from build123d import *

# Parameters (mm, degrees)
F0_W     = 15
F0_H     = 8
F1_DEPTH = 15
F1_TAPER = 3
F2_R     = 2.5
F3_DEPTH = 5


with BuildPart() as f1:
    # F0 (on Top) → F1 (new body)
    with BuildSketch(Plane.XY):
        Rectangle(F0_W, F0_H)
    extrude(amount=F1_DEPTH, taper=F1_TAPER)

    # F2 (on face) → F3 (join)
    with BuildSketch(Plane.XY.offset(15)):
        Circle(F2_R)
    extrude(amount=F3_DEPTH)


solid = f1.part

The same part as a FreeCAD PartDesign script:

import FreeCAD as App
import Part
import Sketcher

V = App.Vector


def add_polygon(sketch, points):
    """Adds a closed chain of lines whose ends are joined by coincident constraints."""
    first, n = sketch.GeometryCount, len(points)
    for a, b in zip(points, points[1:] + points[:1]):
        sketch.addGeometry(Part.LineSegment(App.Vector(*a, 0), App.Vector(*b, 0)), False)
    for i in range(n):
        sketch.addConstraint(Sketcher.Constraint("Coincident", first + i, 2, first + (i + 1) % n, 1))

doc = App.newDocument("Part")
params = doc.addObject("Spreadsheet::Sheet", "Params")
for row, (alias, value) in enumerate([
    ("sketch1_width", "15 mm"),
    ("sketch1_height", "8 mm"),
    ("pad1_length", "15 mm"),
    ("pad1_taper", "-3 deg"),
    ("sketch2_diameter", "5 mm"),
    ("pad2_length", "5 mm"),
], start=1):
    params.set(f"A{row}", alias)
    params.set(f"B{row}", "=" + value)
    params.setAlias(f"B{row}", alias)

body = doc.addObject("PartDesign::Body", "Body")

# Sketch on XY plane
sketch1 = body.newObject("Sketcher::SketchObject", "Sketch")
sketch1.AttachmentSupport = (doc.getObject("XY_Plane"), [""])
sketch1.MapMode = "FlatFace"
add_polygon(sketch1, [(-7.5, 4), (-7.5, -4), (7.5, -4), (7.5, 4)])  # lines 0-3
sketch1.addConstraint(Sketcher.Constraint("Vertical", 0))
sketch1.addConstraint(Sketcher.Constraint("Horizontal", 1))
sketch1.addConstraint(Sketcher.Constraint("Vertical", 2))
sketch1.addConstraint(Sketcher.Constraint("Horizontal", 3))
sketch1.addConstraint(Sketcher.Constraint("Symmetric", 0, 2, 2, 2, -1, 1))
sketch1.addConstraint(Sketcher.Constraint("DistanceX", 1, 1, 1, 2, 15.0))
sketch1.addConstraint(Sketcher.Constraint("DistanceY", 0, 2, 0, 1, 8.0))
sketch1.setExpression("Constraints[9]", "Params.sketch1_width")
sketch1.setExpression("Constraints[10]", "Params.sketch1_height")
pad1 = body.newObject("PartDesign::Pad", "Pad")
pad1.Profile = sketch1
pad1.setExpression("Length", "Params.pad1_length")
pad1.setExpression("TaperAngle", "Params.pad1_taper")

# Sketch on XY plane
sketch2 = body.newObject("Sketcher::SketchObject", "Sketch001")
sketch2.AttachmentSupport = (doc.getObject("XY_Plane"), [""])
sketch2.MapMode = "FlatFace"
sketch2.AttachmentOffset = App.Placement(V(0, 0, 15), App.Rotation())
sketch2.addGeometry(Part.Circle(V(0, 0, 0), V(0, 0, 1), 2.5), False)
sketch2.addConstraint(Sketcher.Constraint("Coincident", 0, 3, -1, 1))
sketch2.addConstraint(Sketcher.Constraint("Diameter", 0, 5.0))
sketch2.setExpression("Constraints[1]", "Params.sketch2_diameter")
pad2 = body.newObject("PartDesign::Pad", "Pad001")
pad2.Profile = sketch2
pad2.setExpression("Length", "Params.pad2_length")

doc.recompute()
